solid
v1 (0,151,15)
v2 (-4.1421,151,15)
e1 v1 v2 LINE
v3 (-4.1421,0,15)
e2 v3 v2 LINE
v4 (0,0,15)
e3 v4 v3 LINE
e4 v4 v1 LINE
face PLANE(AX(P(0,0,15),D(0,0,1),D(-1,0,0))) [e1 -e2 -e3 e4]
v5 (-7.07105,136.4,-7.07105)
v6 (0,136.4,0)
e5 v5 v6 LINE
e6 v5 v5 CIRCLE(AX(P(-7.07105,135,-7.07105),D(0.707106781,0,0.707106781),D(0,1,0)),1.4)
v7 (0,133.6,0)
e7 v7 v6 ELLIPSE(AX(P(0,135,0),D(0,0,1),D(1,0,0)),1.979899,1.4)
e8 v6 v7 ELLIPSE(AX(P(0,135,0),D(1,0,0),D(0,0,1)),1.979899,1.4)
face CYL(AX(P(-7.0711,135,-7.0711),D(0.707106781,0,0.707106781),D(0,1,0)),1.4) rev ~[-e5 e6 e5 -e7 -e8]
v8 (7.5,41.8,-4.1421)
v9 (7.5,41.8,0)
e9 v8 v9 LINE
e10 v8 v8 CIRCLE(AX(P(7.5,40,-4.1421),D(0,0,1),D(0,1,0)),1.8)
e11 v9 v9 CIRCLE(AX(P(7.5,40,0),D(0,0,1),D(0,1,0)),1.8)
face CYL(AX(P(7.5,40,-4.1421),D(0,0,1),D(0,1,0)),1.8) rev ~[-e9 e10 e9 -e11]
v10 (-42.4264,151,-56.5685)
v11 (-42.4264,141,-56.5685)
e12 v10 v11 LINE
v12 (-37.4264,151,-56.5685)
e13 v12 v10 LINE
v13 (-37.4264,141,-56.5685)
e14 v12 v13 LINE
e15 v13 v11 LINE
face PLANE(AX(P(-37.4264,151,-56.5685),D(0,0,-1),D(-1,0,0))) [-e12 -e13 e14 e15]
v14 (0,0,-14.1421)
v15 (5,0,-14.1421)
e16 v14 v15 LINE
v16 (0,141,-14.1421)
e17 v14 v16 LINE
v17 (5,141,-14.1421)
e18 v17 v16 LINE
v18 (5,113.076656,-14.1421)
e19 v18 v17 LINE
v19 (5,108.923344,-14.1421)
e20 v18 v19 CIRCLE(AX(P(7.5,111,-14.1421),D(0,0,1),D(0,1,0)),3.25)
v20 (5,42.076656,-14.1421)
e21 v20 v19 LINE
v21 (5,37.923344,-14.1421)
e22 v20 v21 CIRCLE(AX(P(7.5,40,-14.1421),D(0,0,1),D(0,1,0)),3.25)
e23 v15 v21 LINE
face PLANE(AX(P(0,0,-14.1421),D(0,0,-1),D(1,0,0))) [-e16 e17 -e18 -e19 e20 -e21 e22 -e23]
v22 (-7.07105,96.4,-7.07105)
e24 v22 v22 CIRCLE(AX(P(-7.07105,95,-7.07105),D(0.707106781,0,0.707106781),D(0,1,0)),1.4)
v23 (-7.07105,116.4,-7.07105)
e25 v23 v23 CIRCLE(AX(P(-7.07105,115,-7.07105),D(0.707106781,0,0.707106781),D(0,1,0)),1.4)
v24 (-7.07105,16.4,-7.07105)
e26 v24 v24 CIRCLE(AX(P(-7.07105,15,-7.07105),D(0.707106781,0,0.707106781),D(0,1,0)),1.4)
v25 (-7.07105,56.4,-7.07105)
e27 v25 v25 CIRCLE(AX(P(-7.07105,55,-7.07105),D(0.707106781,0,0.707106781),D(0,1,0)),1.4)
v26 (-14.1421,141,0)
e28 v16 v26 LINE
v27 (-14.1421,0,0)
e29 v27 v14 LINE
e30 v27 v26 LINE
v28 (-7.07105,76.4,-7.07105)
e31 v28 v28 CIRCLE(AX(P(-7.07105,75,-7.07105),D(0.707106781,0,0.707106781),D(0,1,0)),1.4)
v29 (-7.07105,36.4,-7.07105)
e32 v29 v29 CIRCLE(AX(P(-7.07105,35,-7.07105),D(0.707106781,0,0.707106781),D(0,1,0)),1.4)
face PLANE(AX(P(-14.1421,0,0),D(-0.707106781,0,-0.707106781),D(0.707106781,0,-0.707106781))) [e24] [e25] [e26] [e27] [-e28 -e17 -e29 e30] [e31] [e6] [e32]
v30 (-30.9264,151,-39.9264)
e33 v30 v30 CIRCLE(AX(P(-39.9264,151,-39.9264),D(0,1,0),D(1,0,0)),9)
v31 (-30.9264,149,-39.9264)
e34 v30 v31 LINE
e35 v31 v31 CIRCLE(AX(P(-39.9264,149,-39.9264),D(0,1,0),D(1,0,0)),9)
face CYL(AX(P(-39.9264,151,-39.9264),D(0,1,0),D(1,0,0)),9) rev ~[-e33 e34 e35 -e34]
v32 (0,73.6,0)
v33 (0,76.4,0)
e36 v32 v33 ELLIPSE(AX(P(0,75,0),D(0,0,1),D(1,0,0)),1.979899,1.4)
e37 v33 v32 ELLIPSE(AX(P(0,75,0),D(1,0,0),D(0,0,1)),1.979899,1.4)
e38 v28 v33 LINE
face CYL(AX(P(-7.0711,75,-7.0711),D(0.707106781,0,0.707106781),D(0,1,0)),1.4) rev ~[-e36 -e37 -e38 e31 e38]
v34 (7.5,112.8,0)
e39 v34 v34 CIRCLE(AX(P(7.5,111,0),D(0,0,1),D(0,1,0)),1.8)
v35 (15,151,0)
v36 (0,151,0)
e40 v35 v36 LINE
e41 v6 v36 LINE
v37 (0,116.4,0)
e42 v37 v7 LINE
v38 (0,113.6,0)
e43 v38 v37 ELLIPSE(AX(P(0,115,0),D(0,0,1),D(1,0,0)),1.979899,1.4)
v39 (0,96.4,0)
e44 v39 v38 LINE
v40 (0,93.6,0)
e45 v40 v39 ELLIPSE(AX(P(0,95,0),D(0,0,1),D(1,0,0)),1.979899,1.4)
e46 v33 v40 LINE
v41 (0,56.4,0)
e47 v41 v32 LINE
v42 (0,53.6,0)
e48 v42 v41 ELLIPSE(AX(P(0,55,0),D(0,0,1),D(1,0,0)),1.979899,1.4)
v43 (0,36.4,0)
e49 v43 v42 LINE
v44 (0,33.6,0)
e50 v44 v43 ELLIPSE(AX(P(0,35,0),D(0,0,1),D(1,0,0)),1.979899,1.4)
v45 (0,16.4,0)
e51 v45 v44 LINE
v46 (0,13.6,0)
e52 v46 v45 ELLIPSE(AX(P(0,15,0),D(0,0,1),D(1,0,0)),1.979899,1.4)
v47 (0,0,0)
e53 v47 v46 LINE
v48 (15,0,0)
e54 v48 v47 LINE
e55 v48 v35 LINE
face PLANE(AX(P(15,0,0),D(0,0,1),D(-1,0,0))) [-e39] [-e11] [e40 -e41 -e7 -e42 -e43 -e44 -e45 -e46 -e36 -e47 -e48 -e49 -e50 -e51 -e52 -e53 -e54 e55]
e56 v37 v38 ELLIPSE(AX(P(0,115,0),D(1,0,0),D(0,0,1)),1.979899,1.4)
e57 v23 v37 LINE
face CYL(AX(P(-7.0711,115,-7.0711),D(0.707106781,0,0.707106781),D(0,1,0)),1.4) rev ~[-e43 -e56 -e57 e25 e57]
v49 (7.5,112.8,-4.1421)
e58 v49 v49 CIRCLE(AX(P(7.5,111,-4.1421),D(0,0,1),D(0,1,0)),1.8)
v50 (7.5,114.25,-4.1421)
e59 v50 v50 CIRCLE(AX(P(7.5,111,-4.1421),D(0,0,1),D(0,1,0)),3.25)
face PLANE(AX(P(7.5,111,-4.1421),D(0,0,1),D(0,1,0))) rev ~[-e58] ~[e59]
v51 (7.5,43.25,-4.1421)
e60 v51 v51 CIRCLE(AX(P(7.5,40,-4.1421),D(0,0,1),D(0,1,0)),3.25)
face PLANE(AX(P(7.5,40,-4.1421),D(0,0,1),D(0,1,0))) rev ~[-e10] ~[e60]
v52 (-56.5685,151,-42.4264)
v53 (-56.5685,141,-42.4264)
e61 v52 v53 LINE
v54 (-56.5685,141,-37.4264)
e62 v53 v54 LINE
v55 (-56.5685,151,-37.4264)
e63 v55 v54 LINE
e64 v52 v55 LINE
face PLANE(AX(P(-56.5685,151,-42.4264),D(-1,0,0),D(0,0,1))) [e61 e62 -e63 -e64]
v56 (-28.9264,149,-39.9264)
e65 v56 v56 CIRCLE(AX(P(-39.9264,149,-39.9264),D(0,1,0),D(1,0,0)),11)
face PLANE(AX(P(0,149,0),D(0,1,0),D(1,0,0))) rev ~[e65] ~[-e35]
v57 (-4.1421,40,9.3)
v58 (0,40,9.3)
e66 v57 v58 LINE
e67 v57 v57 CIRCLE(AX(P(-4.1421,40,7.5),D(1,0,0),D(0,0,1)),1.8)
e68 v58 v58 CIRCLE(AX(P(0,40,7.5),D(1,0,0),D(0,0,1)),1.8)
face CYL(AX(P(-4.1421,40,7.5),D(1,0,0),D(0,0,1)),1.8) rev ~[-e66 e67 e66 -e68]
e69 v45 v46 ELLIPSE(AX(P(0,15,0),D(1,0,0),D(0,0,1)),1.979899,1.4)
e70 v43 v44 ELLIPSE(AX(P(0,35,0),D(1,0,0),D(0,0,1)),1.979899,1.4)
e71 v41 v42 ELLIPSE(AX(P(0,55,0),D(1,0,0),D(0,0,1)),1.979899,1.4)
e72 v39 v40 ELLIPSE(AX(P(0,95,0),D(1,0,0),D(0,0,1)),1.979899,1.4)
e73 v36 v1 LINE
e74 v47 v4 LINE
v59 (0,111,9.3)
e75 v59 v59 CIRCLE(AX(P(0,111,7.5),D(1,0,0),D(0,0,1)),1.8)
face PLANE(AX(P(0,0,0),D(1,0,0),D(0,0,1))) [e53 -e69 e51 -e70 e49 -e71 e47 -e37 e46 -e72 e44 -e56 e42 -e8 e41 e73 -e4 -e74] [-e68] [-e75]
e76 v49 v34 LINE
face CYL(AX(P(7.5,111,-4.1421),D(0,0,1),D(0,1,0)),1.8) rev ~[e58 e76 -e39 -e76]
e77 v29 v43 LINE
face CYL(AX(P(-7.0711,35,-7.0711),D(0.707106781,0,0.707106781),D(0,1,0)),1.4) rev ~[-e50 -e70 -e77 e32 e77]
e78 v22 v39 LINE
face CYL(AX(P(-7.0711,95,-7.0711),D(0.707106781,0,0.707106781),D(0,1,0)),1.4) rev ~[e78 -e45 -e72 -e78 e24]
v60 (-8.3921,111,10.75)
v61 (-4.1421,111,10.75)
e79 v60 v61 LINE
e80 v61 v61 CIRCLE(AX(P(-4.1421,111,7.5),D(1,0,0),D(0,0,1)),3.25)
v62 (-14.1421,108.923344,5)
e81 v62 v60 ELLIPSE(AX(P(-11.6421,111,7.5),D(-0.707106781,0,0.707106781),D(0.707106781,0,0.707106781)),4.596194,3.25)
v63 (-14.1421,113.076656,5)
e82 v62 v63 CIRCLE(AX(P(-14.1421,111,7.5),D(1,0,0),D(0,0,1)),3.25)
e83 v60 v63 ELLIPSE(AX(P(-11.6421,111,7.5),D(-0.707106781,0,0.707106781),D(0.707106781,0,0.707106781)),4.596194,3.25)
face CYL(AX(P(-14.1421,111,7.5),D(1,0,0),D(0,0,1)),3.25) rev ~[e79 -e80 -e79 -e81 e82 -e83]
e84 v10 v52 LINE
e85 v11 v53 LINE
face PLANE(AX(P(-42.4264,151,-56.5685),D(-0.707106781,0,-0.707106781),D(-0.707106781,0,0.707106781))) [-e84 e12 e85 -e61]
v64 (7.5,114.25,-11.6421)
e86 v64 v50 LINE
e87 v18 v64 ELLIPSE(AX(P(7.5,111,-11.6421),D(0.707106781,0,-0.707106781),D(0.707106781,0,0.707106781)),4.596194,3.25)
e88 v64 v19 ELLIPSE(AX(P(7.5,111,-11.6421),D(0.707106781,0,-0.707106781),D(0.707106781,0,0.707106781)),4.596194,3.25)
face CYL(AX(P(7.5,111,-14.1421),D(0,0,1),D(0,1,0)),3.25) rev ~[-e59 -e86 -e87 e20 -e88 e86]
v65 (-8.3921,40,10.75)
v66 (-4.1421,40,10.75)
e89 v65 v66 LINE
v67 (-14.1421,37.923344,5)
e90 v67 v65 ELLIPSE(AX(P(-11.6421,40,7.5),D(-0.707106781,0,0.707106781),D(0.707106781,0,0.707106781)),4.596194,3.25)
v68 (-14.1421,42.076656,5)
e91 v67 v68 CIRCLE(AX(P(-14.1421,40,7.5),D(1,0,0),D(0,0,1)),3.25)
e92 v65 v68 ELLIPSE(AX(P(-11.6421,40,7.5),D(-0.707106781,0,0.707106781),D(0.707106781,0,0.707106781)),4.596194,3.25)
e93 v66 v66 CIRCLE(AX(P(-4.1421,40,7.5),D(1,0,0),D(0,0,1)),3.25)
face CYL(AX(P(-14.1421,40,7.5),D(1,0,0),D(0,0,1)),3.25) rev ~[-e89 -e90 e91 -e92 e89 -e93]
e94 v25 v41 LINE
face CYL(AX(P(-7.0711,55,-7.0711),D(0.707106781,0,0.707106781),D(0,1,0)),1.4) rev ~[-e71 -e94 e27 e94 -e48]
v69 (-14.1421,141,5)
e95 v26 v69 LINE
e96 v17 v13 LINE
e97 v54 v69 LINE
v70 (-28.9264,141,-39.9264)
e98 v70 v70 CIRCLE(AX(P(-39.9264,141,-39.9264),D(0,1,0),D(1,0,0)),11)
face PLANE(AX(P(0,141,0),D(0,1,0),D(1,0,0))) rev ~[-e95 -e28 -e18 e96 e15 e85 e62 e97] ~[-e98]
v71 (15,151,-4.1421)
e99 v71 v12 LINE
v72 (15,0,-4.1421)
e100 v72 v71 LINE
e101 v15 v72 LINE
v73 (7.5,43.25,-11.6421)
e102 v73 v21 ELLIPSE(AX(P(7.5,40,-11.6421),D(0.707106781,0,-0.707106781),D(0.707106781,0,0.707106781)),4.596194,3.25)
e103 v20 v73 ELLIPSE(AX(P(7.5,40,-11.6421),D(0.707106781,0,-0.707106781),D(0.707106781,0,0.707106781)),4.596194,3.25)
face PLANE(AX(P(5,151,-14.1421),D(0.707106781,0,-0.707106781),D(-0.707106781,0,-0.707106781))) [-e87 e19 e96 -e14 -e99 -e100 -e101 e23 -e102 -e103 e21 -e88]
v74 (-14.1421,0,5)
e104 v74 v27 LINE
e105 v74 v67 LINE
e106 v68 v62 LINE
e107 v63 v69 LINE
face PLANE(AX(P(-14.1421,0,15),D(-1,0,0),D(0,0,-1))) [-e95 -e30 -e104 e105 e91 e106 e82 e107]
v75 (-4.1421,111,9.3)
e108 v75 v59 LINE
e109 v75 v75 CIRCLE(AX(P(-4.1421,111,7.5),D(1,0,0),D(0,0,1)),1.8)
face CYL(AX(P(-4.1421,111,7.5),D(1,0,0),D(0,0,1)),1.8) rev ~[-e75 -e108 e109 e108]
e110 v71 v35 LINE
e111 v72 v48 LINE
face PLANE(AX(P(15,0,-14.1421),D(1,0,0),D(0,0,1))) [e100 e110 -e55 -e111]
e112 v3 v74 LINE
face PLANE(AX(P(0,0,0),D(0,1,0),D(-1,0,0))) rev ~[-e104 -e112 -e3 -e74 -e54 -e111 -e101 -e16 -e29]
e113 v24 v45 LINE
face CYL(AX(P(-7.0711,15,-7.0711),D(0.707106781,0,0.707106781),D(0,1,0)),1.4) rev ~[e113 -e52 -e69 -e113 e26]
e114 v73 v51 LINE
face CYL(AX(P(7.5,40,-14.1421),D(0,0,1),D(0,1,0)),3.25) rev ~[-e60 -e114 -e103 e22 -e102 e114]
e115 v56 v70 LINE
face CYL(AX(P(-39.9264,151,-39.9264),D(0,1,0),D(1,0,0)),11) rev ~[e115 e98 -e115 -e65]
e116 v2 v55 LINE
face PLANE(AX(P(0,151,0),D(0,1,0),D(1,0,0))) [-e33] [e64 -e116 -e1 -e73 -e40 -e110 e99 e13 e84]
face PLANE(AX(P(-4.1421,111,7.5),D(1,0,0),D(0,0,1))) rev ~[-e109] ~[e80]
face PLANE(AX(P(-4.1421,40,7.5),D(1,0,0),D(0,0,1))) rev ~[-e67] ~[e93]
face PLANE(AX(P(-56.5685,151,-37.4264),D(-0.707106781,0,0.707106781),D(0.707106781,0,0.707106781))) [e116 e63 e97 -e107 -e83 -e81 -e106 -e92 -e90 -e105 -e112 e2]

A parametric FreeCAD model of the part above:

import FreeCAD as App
import Part
import Sketcher
from FreeCAD import Vector
Q = App.Units.Quantity


def edges_at(feature, points):
    """Names of the edges that pass closest to the given points."""
    edges = feature.Shape.Edges
    near = lambda p: min(range(len(edges)), key=lambda i: edges[i].distToShape(Part.Vertex(*p))[0])
    return sorted({f"Edge{near(p) + 1}" for p in points})


def add_polygon(sketch, points):
    """Adds a closed chain of lines whose ends are joined by coincident constraints."""
    first, n = sketch.GeometryCount, len(points)
    for a, b in zip(points, points[1:] + points[:1]):
        sketch.addGeometry(Part.LineSegment(App.Vector(*a, 0), App.Vector(*b, 0)), False)
    for i in range(n):
        sketch.addConstraint(Sketcher.Constraint("Coincident", first + i, 2, first + (i + 1) % n, 1))

doc = App.newDocument("Part")
body = doc.addObject("PartDesign::Body", "Body")

sketch1 = body.newObject("Sketcher::SketchObject", "Sketch")
sketch1.AttachmentSupport = (doc.getObject("XZ_Plane"), [""])
sketch1.MapMode = "FlatFace"
add_polygon(sketch1, [(0, 15), (0, 0), (15, 0), (15, -14), (0, -14), (-14, 0), (-14, 15)])
sketch1.addConstraint(Sketcher.Constraint("Vertical", 0))
sketch1.addConstraint(Sketcher.Constraint("Horizontal", 1))
sketch1.addConstraint(Sketcher.Constraint("Vertical", 2))
sketch1.addConstraint(Sketcher.Constraint("Horizontal", 3))
sketch1.addConstraint(Sketcher.Constraint("Vertical", 5))
sketch1.addConstraint(Sketcher.Constraint("Horizontal", 6))
sketch1.addConstraint(Sketcher.Constraint("Coincident", 0, 2, -1, 1))
sketch1.addConstraint(Sketcher.Constraint("PointOnObject", 3, 2, -2))
sketch1.addConstraint(Sketcher.Constraint("PointOnObject", 4, 2, -1))
sketch1.addConstraint(Sketcher.Constraint("Equal", 3, 0))
sketch1.addConstraint(Sketcher.Constraint("Equal", 6, 2))
sketch1.addConstraint(Sketcher.Constraint("DistanceX", 1, 1, 1, 2, 15.0))
sketch1.addConstraint(Sketcher.Constraint("Distance", 4, 20.0))
pad1 = body.newObject("PartDesign::Pad", "Pad")
pad1.Profile = sketch1
pad1.Length = 151
pad1.Reversed = True
doc.recompute()

chamfer = body.newObject("PartDesign::Chamfer", "Chamfer")
chamfer.Base = (pad1, edges_at(pad1, [(-14.142, 75.5, 15), (15, 75.5, -14.142)]))
chamfer.Size = 10

sketch2 = body.newObject("Sketcher::SketchObject", "Sketch001")
sketch2.AttachmentSupport = (doc.getObject("XZ_Plane"), [""])
sketch2.MapMode = "FlatFace"
sketch2.AttachmentOffset = App.Placement(Vector(0, 0, -151), App.Rotation())
add_polygon(sketch2, [(0, -14), (5, -14), (-37, -57), (-42, -57), (-57, -42), (-57, -37), (-14, 5), (-14, 0)])
sketch2.addGeometry(Part.Circle(Vector(-40, -40, 0), Vector(0, 0, 1), 11), False)
sketch2.addConstraint(Sketcher.Constraint("Horizontal", 0))
sketch2.addConstraint(Sketcher.Constraint("Horizontal", 2))
sketch2.addConstraint(Sketcher.Constraint("Vertical", 4))
sketch2.addConstraint(Sketcher.Constraint("Vertical", 6))
sketch2.addConstraint(Sketcher.Constraint("PointOnObject", 6, 2, -1))
sketch2.addConstraint(Sketcher.Constraint("PointOnObject", 7, 2, -2))
sketch2.addConstraint(Sketcher.Constraint("Perpendicular", 1, 3))
sketch2.addConstraint(Sketcher.Constraint("Perpendicular", 3, 5))
sketch2.addConstraint(Sketcher.Constraint("Perpendicular", 5, 7))
sketch2.addConstraint(Sketcher.Constraint("Equal", 0, 2))
sketch2.addConstraint(Sketcher.Constraint("Equal", 2, 4))
sketch2.addConstraint(Sketcher.Constraint("Equal", 4, 6))
sketch2.addConstraint(Sketcher.Constraint("Diameter", 8, 22.0))
sketch2.addConstraint(Sketcher.Constraint("Distance", 1, 60.0))
sketch2.addConstraint(Sketcher.Constraint("DistanceX", 0, 1, 0, 2, 5.0))
sketch2.addConstraint(Sketcher.Constraint("Angle", 1, Q("-135 deg")))
sketch2.addConstraint(Sketcher.Constraint("Distance", 3, 20.0))
sketch2.addConstraint(Sketcher.Constraint("DistanceX", 8, 3, 1, 2, 2.5))
sketch2.addConstraint(Sketcher.Constraint("DistanceY", 3, 2, 8, 3, 2.5))
pad2 = body.newObject("PartDesign::Pad", "Pad001")
pad2.Profile = sketch2
pad2.Length = 10

sketch3 = body.newObject("Sketcher::SketchObject", "Sketch002")
sketch3.AttachmentSupport = (doc.getObject("XZ_Plane"), [""])
sketch3.MapMode = "FlatFace"
sketch3.AttachmentOffset = App.Placement(Vector(0, 0, -151), App.Rotation())
sketch3.addGeometry(Part.Circle(Vector(-40, -40, 0), Vector(0, 0, 1), 11), False)
sketch3.addGeometry(Part.Circle(Vector(-40, -40, 0), Vector(0, 0, 1), 9), False)
sketch3.addConstraint(Sketcher.Constraint("Coincident", 1, 3, 0, 3))
sketch3.addConstraint(Sketcher.Constraint("Diameter", 0, 22.0))
sketch3.addConstraint(Sketcher.Constraint("Diameter", 1, 18.0))
sketch3.addConstraint(Sketcher.Constraint("DistanceX", 0, 3, -1, 1, 39.9264))
sketch3.addConstraint(Sketcher.Constraint("DistanceY", 0, 3, -1, 1, 39.9264))
pad3 = body.newObject("PartDesign::Pad", "Pad002")
pad3.Profile = sketch3
pad3.Length = 2

sketch4 = body.newObject("Sketcher::SketchObject", "Sketch003")
sketch4.AttachmentSupport = (doc.getObject("YZ_Plane"), [""])
sketch4.MapMode = "FlatFace"
sketch4.AttachmentOffset = App.Placement(Vector(0, 0, -14.1421), App.Rotation())
sketch4.addGeometry(Part.Circle(Vector(40, 7.5, 0), Vector(0, 0, 1), 1.8), False)
sketch4.addGeometry(Part.Circle(Vector(111, 7.5, 0), Vector(0, 0, 1), 1.8), False)
sketch4.addConstraint(Sketcher.Constraint("Equal", 0, 1))
sketch4.addConstraint(Sketcher.Constraint("Horizontal", 0, 3, 1, 3))
sketch4.addConstraint(Sketcher.Constraint("Diameter", 0, 3.6))
sketch4.addConstraint(Sketcher.Constraint("DistanceX", -1, 1, 0, 3, 40.0))
sketch4.addConstraint(Sketcher.Constraint("DistanceX", -1, 1, 1, 3, 111.0))
sketch4.addConstraint(Sketcher.Constraint("DistanceY", -1, 1, 0, 3, 7.5))
doc.recompute()
hole = body.newObject("PartDesign::Hole", "Hole")
hole.Profile = sketch4
hole.ThreadType = "None"
hole.Diameter = 3.6
hole.DepthType = "ThroughAll"
hole.HoleCutType = "Counterbore"
hole.HoleCutDiameter = 6.5
hole.HoleCutDepth = 10
hole.Reversed = True

sketch5 = body.newObject("Sketcher::SketchObject", "Sketch004")
sketch5.AttachmentSupport = (doc.getObject("XY_Plane"), [""])
sketch5.MapMode = "FlatFace"
sketch5.AttachmentOffset = App.Placement(Vector(0, 0, -14.1421), App.Rotation())
sketch5.addGeometry(Part.Circle(Vector(7.5, 40, 0), Vector(0, 0, 1), 1.8), False)
sketch5.addGeometry(Part.Circle(Vector(7.5, 111, 0), Vector(0, 0, 1), 1.8), False)
sketch5.addConstraint(Sketcher.Constraint("Equal", 0, 1))
sketch5.addConstraint(Sketcher.Constraint("Vertical", 0, 3, 1, 3))
sketch5.addConstraint(Sketcher.Constraint("Diameter", 0, 3.6))
sketch5.addConstraint(Sketcher.Constraint("DistanceY", -1, 1, 0, 3, 40.0))
sketch5.addConstraint(Sketcher.Constraint("DistanceY", -1, 1, 1, 3, 111.0))
sketch5.addConstraint(Sketcher.Constraint("DistanceX", -1, 1, 0, 3, 7.5))
doc.recompute()
hole2 = body.newObject("PartDesign::Hole", "Hole001")
hole2.Profile = sketch5
hole2.ThreadType = "None"
hole2.Diameter = 3.6
hole2.DepthType = "ThroughAll"
hole2.HoleCutType = "Counterbore"
hole2.HoleCutDiameter = 6.5
hole2.HoleCutDepth = 10
hole2.Reversed = True

sketch6 = body.newObject("Sketcher::SketchObject", "Sketch005")
sketch6.Placement = App.Placement(Vector(-7.0711, 0, -7.0711), App.Rotation(Vector(-0.707106781, 0, 0.707106781), Vector(0, 0.999999999, 0), Vector(-0.707106781, 0, -0.707106781), "ZXY"))
sketch6.addGeometry(Part.Circle(Vector(0, 15, 0), Vector(0, 0, 1), 1.4), False)
sketch6.addGeometry(Part.Circle(Vector(0, 35, 0), Vector(0, 0, 1), 1.4), False)
sketch6.addGeometry(Part.Circle(Vector(0, 55, 0), Vector(0, 0, 1), 1.4), False)
sketch6.addGeometry(Part.Circle(Vector(0, 75, 0), Vector(0, 0, 1), 1.4), False)
sketch6.addGeometry(Part.Circle(Vector(0, 95, 0), Vector(0, 0, 1), 1.4), False)
sketch6.addGeometry(Part.Circle(Vector(0, 115, 0), Vector(0, 0, 1), 1.4), False)
sketch6.addGeometry(Part.Circle(Vector(0, 135, 0), Vector(0, 0, 1), 1.4), False)
sketch6.addConstraint(Sketcher.Constraint("Equal", 0, 1))
sketch6.addConstraint(Sketcher.Constraint("Equal", 1, 2))
sketch6.addConstraint(Sketcher.Constraint("Equal", 2, 3))
sketch6.addConstraint(Sketcher.Constraint("Equal", 3, 4))
sketch6.addConstraint(Sketcher.Constraint("Equal", 4, 5))
sketch6.addConstraint(Sketcher.Constraint("Equal", 5, 6))
sketch6.addConstraint(Sketcher.Constraint("PointOnObject", 0, 3, -2))
sketch6.addConstraint(Sketcher.Constraint("PointOnObject", 1, 3, -2))
sketch6.addConstraint(Sketcher.Constraint("PointOnObject", 2, 3, -2))
sketch6.addConstraint(Sketcher.Constraint("PointOnObject", 3, 3, -2))
sketch6.addConstraint(Sketcher.Constraint("PointOnObject", 4, 3, -2))
sketch6.addConstraint(Sketcher.Constraint("PointOnObject", 5, 3, -2))
sketch6.addConstraint(Sketcher.Constraint("PointOnObject", 6, 3, -2))
sketch6.addConstraint(Sketcher.Constraint("Diameter", 0, 2.8))
sketch6.addConstraint(Sketcher.Constraint("DistanceY", -1, 1, 0, 3, 15.0))
sketch6.addConstraint(Sketcher.Constraint("DistanceY", -1, 1, 1, 3, 35.0))
sketch6.addConstraint(Sketcher.Constraint("DistanceY", -1, 1, 2, 3, 55.0))
sketch6.addConstraint(Sketcher.Constraint("DistanceY", -1, 1, 3, 3, 75.0))
sketch6.addConstraint(Sketcher.Constraint("DistanceY", -1, 1, 4, 3, 95.0))
sketch6.addConstraint(Sketcher.Constraint("DistanceY", -1, 1, 5, 3, 115.0))
sketch6.addConstraint(Sketcher.Constraint("DistanceY", -1, 1, 6, 3, 135.0))
doc.recompute()
hole3 = body.newObject("PartDesign::Hole", "Hole002")
hole3.Profile = sketch6
hole3.ThreadType = "None"
hole3.Diameter = 2.8
hole3.DepthType = "ThroughAll"

doc.recompute()
